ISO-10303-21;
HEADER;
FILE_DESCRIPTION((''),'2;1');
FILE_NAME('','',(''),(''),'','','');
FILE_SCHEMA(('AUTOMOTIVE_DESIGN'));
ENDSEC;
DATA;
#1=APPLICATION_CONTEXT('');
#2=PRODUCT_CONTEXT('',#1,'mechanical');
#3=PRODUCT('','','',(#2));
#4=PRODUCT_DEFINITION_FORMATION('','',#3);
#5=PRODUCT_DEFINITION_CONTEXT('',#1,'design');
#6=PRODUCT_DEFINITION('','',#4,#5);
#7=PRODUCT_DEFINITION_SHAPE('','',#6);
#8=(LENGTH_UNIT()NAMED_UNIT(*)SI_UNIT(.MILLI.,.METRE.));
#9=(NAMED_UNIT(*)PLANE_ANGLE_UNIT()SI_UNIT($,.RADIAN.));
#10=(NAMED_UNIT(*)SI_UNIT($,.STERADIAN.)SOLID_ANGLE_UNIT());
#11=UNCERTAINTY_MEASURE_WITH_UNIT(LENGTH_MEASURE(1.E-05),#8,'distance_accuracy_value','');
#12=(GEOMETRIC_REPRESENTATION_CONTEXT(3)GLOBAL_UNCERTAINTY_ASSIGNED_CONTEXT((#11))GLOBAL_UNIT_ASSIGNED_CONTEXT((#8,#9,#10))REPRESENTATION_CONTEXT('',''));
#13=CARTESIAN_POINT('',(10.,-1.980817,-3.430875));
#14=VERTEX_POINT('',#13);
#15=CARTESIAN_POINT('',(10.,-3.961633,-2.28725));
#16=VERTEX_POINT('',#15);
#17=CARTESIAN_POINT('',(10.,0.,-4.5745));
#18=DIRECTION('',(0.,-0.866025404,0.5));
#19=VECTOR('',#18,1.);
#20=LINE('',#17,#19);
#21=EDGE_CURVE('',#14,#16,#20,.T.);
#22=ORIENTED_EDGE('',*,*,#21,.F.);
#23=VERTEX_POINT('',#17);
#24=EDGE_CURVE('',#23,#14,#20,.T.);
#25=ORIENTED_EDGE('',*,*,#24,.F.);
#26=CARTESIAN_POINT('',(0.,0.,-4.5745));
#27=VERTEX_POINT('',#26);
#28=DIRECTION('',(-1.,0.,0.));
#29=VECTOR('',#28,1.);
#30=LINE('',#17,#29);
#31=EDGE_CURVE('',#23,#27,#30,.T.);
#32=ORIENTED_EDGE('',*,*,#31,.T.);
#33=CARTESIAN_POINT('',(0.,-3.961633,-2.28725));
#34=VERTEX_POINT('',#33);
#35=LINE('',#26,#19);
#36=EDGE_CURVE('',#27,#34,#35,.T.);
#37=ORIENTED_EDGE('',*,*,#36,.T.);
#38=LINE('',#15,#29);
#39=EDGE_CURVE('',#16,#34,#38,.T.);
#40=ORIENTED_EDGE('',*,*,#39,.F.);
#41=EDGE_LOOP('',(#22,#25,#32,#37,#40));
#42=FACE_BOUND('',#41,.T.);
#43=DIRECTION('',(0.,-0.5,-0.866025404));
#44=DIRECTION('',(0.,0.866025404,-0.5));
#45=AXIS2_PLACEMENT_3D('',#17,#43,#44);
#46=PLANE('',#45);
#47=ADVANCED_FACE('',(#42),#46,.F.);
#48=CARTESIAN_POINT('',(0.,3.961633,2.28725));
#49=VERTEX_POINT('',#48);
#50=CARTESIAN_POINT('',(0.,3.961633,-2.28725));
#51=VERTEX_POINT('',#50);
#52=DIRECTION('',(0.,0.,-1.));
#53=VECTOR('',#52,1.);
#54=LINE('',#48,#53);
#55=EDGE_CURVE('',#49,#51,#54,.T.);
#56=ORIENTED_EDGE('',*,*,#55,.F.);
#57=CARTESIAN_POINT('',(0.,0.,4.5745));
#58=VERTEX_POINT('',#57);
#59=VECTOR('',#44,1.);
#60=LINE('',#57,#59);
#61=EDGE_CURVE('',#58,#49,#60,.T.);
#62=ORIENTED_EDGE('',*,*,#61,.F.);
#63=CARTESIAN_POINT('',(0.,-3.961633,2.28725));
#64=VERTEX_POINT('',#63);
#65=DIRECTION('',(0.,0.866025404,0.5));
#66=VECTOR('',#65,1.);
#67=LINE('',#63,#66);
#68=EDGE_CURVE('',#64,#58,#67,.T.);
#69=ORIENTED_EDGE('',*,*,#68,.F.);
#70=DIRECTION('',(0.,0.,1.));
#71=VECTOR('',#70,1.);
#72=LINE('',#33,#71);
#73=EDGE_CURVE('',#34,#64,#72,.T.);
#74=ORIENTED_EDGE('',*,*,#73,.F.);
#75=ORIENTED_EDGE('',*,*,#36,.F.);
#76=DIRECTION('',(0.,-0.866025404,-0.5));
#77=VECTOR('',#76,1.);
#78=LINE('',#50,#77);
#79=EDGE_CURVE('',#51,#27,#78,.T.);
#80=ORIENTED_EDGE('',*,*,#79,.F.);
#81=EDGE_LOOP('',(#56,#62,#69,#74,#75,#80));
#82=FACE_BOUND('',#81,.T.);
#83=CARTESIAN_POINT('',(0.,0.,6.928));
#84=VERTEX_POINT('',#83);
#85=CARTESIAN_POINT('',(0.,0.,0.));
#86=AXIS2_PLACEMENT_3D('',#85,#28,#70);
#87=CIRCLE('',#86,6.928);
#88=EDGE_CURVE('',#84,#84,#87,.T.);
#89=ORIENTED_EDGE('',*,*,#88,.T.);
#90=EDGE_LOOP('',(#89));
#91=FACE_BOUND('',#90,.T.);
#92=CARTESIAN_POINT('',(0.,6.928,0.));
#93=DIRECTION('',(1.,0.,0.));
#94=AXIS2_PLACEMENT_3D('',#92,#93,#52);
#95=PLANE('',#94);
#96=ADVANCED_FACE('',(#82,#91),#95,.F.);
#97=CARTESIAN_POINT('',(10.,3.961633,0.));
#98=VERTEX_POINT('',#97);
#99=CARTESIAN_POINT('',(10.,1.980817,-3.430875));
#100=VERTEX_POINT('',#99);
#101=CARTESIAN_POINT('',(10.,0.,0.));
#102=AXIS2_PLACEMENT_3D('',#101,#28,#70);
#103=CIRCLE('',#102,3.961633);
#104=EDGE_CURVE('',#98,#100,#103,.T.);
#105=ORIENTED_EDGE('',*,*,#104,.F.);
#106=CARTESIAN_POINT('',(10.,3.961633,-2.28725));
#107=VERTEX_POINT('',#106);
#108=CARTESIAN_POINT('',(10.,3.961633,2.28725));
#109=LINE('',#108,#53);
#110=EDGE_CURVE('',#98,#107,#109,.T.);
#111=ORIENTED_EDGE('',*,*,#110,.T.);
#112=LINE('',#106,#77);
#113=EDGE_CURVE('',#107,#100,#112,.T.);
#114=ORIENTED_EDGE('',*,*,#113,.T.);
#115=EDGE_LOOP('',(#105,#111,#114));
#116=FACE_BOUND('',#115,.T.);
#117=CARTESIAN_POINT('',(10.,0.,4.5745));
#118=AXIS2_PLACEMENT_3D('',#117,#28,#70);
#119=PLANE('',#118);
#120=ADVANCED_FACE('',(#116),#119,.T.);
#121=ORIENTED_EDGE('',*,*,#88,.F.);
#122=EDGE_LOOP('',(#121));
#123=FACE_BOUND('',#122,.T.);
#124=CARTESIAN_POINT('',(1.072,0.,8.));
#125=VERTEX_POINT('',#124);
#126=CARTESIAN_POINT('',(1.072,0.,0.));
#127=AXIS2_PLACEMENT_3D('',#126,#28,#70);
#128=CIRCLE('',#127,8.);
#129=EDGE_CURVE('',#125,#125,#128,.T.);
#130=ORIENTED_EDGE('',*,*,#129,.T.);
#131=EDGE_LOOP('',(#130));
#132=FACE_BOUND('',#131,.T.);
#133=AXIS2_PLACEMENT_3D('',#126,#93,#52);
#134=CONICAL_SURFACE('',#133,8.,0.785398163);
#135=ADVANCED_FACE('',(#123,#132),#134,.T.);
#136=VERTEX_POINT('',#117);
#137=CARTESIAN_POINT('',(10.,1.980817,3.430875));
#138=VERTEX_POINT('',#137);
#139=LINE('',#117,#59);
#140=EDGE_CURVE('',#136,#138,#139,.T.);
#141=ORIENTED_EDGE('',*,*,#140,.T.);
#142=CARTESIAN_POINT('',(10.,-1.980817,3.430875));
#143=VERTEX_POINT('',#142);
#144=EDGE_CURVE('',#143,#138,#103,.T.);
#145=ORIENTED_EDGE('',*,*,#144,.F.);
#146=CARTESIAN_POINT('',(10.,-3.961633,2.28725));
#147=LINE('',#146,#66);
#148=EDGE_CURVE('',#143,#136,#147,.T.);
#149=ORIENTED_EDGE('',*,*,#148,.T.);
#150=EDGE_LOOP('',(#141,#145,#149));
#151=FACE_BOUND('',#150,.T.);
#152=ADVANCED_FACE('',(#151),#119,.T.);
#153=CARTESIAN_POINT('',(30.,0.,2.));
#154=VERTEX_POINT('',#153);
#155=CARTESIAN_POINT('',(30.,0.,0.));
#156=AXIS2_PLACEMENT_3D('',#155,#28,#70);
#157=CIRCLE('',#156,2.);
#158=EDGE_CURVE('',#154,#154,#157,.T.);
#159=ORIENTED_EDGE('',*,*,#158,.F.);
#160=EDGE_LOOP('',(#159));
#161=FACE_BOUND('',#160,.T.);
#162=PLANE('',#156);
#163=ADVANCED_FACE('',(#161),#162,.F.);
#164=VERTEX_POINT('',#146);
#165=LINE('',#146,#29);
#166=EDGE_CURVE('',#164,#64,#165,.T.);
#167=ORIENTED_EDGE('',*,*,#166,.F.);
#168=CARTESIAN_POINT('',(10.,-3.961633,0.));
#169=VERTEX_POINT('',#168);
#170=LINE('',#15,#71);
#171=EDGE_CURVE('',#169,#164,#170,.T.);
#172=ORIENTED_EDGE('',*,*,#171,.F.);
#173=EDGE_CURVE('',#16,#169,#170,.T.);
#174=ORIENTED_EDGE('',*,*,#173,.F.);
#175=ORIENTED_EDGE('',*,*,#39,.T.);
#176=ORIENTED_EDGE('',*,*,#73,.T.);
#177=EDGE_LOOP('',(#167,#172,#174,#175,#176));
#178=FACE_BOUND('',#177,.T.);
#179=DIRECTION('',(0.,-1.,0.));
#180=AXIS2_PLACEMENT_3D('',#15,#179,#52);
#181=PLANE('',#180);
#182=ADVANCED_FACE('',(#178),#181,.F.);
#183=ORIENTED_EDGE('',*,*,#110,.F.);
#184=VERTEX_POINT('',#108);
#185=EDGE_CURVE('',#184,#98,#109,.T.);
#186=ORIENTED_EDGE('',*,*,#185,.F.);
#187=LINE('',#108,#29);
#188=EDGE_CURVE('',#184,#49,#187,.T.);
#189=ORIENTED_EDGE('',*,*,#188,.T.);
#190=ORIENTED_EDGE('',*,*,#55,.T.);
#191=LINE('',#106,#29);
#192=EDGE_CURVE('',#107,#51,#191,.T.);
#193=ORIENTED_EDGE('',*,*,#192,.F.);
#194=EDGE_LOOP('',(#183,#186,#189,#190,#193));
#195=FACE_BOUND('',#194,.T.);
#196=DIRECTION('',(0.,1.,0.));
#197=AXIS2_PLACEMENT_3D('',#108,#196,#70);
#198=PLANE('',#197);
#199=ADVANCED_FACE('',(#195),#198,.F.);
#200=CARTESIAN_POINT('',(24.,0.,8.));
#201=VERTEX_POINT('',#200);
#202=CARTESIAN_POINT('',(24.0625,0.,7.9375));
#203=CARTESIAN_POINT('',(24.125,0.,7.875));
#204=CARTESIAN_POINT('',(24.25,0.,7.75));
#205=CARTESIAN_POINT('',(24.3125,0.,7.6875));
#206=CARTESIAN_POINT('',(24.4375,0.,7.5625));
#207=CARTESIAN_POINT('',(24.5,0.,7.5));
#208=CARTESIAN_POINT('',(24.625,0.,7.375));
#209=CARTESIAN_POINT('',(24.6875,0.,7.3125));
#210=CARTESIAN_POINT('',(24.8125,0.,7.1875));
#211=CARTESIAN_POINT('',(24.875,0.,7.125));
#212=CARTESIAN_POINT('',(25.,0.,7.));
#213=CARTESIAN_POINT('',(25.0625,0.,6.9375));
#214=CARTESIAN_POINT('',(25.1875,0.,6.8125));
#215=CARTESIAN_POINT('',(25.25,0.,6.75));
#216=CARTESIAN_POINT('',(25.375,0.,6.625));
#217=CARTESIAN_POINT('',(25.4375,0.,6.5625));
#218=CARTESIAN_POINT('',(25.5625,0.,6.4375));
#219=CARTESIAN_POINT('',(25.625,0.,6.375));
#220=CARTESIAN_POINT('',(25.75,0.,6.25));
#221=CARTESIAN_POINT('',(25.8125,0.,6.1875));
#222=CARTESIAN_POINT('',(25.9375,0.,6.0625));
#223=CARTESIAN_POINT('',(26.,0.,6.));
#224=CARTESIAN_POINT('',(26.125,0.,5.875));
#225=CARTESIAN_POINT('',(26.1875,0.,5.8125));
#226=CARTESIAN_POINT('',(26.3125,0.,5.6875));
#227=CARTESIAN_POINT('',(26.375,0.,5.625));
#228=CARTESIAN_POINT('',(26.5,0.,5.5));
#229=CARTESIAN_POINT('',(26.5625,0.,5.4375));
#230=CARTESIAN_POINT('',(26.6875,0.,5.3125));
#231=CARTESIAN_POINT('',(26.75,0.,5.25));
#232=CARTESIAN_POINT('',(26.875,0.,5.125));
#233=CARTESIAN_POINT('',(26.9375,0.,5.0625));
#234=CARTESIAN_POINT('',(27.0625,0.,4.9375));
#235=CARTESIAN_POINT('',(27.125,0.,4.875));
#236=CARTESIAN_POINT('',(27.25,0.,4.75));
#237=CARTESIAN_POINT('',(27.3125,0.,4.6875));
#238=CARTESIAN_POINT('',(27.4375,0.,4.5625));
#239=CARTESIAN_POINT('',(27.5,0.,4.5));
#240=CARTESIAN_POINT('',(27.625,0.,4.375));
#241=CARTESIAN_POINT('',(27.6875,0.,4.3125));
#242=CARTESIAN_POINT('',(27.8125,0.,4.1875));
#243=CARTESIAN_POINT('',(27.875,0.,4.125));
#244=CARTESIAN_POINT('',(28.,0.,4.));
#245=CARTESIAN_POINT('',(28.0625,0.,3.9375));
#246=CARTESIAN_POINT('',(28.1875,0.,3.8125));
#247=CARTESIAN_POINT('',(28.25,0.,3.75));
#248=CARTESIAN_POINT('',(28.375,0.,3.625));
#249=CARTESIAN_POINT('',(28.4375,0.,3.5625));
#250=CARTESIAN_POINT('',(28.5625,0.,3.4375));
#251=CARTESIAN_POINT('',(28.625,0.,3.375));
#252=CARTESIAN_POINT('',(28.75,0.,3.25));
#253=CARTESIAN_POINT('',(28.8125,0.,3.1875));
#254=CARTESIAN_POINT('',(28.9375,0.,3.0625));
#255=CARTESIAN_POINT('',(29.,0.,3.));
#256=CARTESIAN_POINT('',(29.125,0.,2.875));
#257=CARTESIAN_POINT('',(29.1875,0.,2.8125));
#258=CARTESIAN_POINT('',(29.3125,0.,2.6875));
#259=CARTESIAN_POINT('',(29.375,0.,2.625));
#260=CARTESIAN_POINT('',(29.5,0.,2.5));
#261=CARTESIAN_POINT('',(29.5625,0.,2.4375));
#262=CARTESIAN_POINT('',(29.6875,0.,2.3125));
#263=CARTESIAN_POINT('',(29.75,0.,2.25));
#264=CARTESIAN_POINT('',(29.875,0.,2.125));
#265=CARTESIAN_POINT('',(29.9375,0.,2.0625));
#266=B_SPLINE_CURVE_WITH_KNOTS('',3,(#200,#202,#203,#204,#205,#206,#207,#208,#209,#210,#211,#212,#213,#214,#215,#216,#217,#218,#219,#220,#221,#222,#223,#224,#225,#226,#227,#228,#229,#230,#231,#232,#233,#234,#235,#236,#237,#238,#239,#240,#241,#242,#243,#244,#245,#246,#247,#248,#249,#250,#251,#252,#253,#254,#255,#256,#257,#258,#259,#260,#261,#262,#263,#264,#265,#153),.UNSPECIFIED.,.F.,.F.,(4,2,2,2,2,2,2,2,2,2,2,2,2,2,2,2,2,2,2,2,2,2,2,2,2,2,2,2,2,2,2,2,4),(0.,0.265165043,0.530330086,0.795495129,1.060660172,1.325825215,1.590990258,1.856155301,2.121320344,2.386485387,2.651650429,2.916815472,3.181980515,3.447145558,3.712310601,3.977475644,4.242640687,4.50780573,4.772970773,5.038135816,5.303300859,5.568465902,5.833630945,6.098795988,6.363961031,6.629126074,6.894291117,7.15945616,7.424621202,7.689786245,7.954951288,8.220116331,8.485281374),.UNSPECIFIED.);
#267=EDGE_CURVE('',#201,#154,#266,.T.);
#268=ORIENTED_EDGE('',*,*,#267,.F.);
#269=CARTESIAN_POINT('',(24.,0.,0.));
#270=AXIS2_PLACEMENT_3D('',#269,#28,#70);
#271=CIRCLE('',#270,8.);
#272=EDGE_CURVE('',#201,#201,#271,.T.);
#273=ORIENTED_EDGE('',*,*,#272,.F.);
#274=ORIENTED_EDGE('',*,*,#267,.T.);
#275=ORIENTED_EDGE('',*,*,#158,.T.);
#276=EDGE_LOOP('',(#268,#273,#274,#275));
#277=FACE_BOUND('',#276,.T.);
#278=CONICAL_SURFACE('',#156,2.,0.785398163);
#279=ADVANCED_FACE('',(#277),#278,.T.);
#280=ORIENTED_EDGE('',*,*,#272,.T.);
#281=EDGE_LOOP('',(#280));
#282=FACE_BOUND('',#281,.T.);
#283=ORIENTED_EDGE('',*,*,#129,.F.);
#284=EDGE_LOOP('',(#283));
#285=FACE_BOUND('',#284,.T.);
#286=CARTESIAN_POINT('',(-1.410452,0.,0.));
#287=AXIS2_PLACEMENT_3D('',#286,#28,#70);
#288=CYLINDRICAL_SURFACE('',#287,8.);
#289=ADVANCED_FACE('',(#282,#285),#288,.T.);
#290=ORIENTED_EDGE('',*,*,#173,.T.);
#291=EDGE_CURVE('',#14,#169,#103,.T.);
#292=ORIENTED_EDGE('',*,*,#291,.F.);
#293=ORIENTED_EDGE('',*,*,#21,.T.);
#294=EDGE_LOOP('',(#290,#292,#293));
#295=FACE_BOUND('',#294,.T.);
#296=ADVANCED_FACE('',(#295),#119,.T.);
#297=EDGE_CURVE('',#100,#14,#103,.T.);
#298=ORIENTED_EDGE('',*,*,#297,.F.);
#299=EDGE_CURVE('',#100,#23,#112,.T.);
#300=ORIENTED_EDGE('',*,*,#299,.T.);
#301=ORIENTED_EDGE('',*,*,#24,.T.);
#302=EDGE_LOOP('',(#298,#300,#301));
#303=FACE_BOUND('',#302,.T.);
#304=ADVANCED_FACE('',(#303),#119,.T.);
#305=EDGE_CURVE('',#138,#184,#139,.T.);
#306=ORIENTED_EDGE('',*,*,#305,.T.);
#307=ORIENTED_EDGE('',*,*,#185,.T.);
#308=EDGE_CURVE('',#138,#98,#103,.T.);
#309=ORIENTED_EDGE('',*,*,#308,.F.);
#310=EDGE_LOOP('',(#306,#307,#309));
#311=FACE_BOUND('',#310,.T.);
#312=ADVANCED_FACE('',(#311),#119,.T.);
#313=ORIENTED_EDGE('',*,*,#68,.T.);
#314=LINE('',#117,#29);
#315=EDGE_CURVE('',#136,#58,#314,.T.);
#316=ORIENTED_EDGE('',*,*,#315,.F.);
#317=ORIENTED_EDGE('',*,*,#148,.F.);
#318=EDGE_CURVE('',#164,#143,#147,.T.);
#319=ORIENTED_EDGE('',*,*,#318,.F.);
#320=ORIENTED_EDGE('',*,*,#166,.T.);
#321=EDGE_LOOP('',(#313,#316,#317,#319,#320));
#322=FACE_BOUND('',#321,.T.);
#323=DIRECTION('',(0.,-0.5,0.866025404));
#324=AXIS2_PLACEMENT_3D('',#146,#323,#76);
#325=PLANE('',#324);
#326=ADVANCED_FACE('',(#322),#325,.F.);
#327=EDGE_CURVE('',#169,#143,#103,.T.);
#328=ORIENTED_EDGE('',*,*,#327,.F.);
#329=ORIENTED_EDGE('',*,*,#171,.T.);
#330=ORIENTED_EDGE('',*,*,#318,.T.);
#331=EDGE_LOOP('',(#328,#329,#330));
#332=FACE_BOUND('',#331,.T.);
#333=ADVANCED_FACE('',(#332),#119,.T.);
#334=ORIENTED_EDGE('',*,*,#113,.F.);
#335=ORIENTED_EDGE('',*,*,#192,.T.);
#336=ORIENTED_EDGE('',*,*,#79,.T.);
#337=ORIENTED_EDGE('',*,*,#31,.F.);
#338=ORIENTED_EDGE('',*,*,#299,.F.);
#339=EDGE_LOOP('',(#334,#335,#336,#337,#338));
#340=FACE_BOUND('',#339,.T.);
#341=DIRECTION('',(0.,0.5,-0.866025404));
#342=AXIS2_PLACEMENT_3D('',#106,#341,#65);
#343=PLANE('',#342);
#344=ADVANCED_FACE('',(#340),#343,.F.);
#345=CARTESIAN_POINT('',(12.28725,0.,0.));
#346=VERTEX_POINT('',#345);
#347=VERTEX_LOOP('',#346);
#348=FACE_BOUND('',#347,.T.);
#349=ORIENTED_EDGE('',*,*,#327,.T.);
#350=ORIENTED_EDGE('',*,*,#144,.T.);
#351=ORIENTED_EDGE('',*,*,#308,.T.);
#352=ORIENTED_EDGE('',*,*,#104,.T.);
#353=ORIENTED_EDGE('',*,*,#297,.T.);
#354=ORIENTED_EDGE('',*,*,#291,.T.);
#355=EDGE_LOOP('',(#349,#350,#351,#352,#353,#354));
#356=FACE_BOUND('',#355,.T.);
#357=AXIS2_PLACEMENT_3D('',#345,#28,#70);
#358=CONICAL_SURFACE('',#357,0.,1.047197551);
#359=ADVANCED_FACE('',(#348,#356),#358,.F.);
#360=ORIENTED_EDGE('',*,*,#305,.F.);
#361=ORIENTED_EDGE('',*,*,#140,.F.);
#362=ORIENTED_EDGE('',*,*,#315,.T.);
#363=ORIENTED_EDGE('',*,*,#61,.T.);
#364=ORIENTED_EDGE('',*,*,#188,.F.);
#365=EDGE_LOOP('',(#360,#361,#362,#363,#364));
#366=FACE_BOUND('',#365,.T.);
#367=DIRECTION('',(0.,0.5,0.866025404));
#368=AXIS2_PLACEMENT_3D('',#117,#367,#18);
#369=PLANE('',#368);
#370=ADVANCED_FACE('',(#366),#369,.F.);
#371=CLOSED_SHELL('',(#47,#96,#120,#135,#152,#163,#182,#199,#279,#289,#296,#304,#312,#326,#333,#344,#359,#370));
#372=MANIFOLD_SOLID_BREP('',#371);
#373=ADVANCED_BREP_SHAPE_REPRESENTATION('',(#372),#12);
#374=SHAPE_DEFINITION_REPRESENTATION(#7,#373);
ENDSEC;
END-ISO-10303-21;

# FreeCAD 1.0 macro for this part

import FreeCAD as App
import Part
import Sketcher

V = App.Vector
Q = App.Units.Quantity

doc = App.newDocument("Part")
params = doc.addObject("Spreadsheet::Sheet", "Params")
for row, (alias, value) in enumerate([
    ("sketch1_width", "30 mm"),
    ("sketch1_height", "2 mm"),
    ("revolution_angle", "360 deg"),
    ("pocket1_length", "10 mm"),
    ("groove_angle", "360 deg"),
], start=1):
    params.set(f"A{row}", alias)
    params.set(f"B{row}", "=" + value)
    params.setAlias(f"B{row}", alias)

body = doc.addObject("PartDesign::Body", "Body")

# Sketch on XY plane
sketch1 = doc.addObject("Sketcher::SketchObject", "Sketch")
body.addObject(sketch1)
sketch1.AttachmentSupport = (doc.XY_Plane, [""])
sketch1.MapMode = "FlatFace"
sketch1.addGeometry(Part.LineSegment(V(0, 0, 0), V(30, 0, 0)), False)
sketch1.addGeometry(Part.LineSegment(V(30, 0, 0), V(30, 2, 0)), False)
sketch1.addGeometry(Part.LineSegment(V(30, 2, 0), V(24, 8, 0)), False)
sketch1.addGeometry(Part.LineSegment(V(24, 8, 0), V(1.1, 8, 0)), False)
sketch1.addGeometry(Part.LineSegment(V(1.1, 8, 0), V(0, 6.9, 0)), False)
sketch1.addGeometry(Part.LineSegment(V(0, 6.9, 0), V(0, 0, 0)), False)
sketch1.addConstraint(Sketcher.Constraint("Coincident", 0, 2, 1, 1))
sketch1.addConstraint(Sketcher.Constraint("Coincident", 1, 2, 2, 1))
sketch1.addConstraint(Sketcher.Constraint("Coincident", 2, 2, 3, 1))
sketch1.addConstraint(Sketcher.Constraint("Coincident", 3, 2, 4, 1))
sketch1.addConstraint(Sketcher.Constraint("Coincident", 4, 2, 5, 1))
sketch1.addConstraint(Sketcher.Constraint("Coincident", 5, 2, 0, 1))
sketch1.addConstraint(Sketcher.Constraint("Horizontal", 0))
sketch1.addConstraint(Sketcher.Constraint("Vertical", 1))
sketch1.addConstraint(Sketcher.Constraint("Horizontal", 3))
sketch1.addConstraint(Sketcher.Constraint("Vertical", 5))
sketch1.addConstraint(Sketcher.Constraint("Coincident", 5, 2, -1, 1))
sketch1.addConstraint(Sketcher.Constraint("Perpendicular", 2, 4))
sketch1.addConstraint(Sketcher.Constraint("DistanceX", 0, 1, 0, 2, 30.0))
sketch1.addConstraint(Sketcher.Constraint("DistanceY", 1, 1, 1, 2, 2.0))
sketch1.addConstraint(Sketcher.Constraint("Angle", 2, Q("135 deg")))
sketch1.addConstraint(Sketcher.Constraint("DistanceX", -1, 1, 2, 2, 24.0))
sketch1.addConstraint(Sketcher.Constraint("DistanceX", 3, 2, 3, 1, 22.928))
sketch1.setExpression("Constraints[12]", "Params.sketch1_width")
sketch1.setExpression("Constraints[13]", "Params.sketch1_height")
revolution = doc.addObject("PartDesign::Revolution", "Revolution")
body.addObject(revolution)
revolution.Profile = sketch1
revolution.ReferenceAxis = (sketch1, ["H_Axis"])
revolution.setExpression("Angle", "Params.revolution_angle")

# Sketch on YZ plane
sketch2 = doc.addObject("Sketcher::SketchObject", "Sketch001")
body.addObject(sketch2)
sketch2.AttachmentSupport = (doc.YZ_Plane, [""])
sketch2.MapMode = "FlatFace"
sketch2.addGeometry(Part.LineSegment(V(0, 4.6, 0), V(4, 2.3, 0)), False)
sketch2.addGeometry(Part.LineSegment(V(4, 2.3, 0), V(4, -2.3, 0)), False)
sketch2.addGeometry(Part.LineSegment(V(4, -2.3, 0), V(0, -4.6, 0)), False)
sketch2.addGeometry(Part.LineSegment(V(0, -4.6, 0), V(-4, -2.3, 0)), False)
sketch2.addGeometry(Part.LineSegment(V(-4, -2.3, 0), V(-4, 2.3, 0)), False)
sketch2.addGeometry(Part.LineSegment(V(-4, 2.3, 0), V(0, 4.6, 0)), False)
sketch2.addConstraint(Sketcher.Constraint("Coincident", 0, 2, 1, 1))
sketch2.addConstraint(Sketcher.Constraint("Coincident", 1, 2, 2, 1))
sketch2.addConstraint(Sketcher.Constraint("Coincident", 2, 2, 3, 1))
sketch2.addConstraint(Sketcher.Constraint("Coincident", 3, 2, 4, 1))
sketch2.addConstraint(Sketcher.Constraint("Coincident", 4, 2, 5, 1))
sketch2.addConstraint(Sketcher.Constraint("Coincident", 5, 2, 0, 1))
sketch2.addConstraint(Sketcher.Constraint("Vertical", 1))
sketch2.addConstraint(Sketcher.Constraint("Vertical", 4))
sketch2.addConstraint(Sketcher.Constraint("Symmetric", 0, 2, 3, 2, -1, 1))
sketch2.addConstraint(Sketcher.Constraint("Symmetric", 2, 2, 5, 2, -1, 1))
sketch2.addConstraint(Sketcher.Constraint("PointOnObject", 2, 2, -2))
sketch2.addConstraint(Sketcher.Constraint("Parallel", 2, 5))
sketch2.addConstraint(Sketcher.Constraint("Horizontal", 1, 2, 3, 2))
sketch2.addConstraint(Sketcher.Constraint("Angle", 0, Q("-30 deg")))
sketch2.addConstraint(Sketcher.Constraint("DistanceY", 1, 2, 1, 1, 4.5745))
sketch2.addConstraint(Sketcher.Constraint("DistanceY", 2, 2, 5, 2, 9.149))
pocket1 = doc.addObject("PartDesign::Pocket", "Pocket")
body.addObject(pocket1)
pocket1.Profile = sketch2
pocket1.setExpression("Length", "Params.pocket1_length")
pocket1.Reversed = True

# Sketch on XY plane
sketch3 = doc.addObject("Sketcher::SketchObject", "Sketch002")
body.addObject(sketch3)
sketch3.AttachmentSupport = (doc.XY_Plane, [""])
sketch3.MapMode = "FlatFace"
sketch3.addGeometry(Part.LineSegment(V(12.3, 0, 0), V(10, 4, 0)), False)
sketch3.addGeometry(Part.LineSegment(V(10, 4, 0), V(10, 0, 0)), False)
sketch3.addGeometry(Part.LineSegment(V(10, 0, 0), V(12.3, 0, 0)), False)
sketch3.addConstraint(Sketcher.Constraint("Coincident", 0, 2, 1, 1))
sketch3.addConstraint(Sketcher.Constraint("Coincident", 1, 2, 2, 1))
sketch3.addConstraint(Sketcher.Constraint("Coincident", 2, 2, 0, 1))
sketch3.addConstraint(Sketcher.Constraint("Vertical", 1))
sketch3.addConstraint(Sketcher.Constraint("Horizontal", 2))
sketch3.addConstraint(Sketcher.Constraint("PointOnObject", 1, 2, -1))
sketch3.addConstraint(Sketcher.Constraint("Angle", 0, Q("120 deg")))
sketch3.addConstraint(Sketcher.Constraint("DistanceX", -1, 1, 0, 2, 10.0))
sketch3.addConstraint(Sketcher.Constraint("Distance", 0, 4.5745))
groove = doc.addObject("PartDesign::Groove", "Groove")
body.addObject(groove)
groove.Profile = sketch3
groove.ReferenceAxis = (sketch3, ["H_Axis"])
groove.setExpression("Angle", "Params.groove_angle")

doc.recompute()
